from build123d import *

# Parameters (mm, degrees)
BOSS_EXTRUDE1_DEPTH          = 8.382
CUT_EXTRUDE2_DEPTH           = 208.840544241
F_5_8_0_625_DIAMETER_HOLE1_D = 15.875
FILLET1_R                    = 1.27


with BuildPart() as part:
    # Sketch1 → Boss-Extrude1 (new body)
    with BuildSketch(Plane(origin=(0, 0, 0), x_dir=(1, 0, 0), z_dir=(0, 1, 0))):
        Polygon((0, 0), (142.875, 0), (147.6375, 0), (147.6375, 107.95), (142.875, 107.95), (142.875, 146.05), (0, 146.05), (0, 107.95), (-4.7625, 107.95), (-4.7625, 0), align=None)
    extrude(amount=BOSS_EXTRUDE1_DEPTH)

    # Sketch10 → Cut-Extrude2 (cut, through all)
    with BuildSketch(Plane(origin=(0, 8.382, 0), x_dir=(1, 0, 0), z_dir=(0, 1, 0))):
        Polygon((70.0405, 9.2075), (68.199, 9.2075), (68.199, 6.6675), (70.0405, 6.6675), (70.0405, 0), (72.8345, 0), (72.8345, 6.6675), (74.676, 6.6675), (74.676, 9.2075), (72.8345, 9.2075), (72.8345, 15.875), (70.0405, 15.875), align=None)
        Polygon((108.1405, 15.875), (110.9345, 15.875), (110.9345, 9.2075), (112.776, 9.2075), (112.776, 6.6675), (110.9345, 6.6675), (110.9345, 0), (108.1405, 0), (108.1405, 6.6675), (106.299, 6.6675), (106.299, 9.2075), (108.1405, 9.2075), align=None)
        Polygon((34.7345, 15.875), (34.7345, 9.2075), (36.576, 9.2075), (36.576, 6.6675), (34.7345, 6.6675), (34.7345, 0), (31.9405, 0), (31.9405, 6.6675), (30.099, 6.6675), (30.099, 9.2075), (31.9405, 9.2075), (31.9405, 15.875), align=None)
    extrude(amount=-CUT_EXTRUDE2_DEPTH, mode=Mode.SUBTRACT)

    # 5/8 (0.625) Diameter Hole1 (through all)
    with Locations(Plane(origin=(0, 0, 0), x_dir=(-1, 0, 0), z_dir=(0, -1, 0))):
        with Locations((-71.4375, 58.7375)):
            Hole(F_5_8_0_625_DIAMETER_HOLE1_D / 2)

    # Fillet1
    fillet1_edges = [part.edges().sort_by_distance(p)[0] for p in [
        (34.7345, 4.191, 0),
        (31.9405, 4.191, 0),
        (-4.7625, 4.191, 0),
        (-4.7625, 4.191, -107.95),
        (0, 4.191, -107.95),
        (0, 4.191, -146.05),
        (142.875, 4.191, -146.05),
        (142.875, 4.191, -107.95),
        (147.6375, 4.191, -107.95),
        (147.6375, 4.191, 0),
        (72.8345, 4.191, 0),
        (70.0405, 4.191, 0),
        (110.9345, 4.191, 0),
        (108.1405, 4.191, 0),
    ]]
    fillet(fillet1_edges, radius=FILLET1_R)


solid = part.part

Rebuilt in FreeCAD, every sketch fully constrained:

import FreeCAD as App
import Part
import Sketcher

V = App.Vector
Q = App.Units.Quantity


def edges_at(feature, points):
    """Names of the edges that pass closest to the given points."""
    edges = feature.Shape.Edges
    near = lambda p: min(range(len(edges)), key=lambda i: edges[i].distToShape(Part.Vertex(*p))[0])
    return sorted({f"Edge{near(p) + 1}" for p in points})

doc = App.newDocument("Part")
body = doc.addObject("PartDesign::Body", "Body")

sketch1 = body.newObject("Sketcher::SketchObject", "Sketch")
sketch1.AttachmentSupport = (doc.getObject("XZ_Plane"), [""])
sketch1.MapMode = "FlatFace"
sketch1.addGeometry([
    Part.LineSegment(V(147.6, 0, 0), V(147.6, -108, 0)),
    Part.LineSegment(V(147.6, -108, 0), V(142.9, -108, 0)),
    Part.LineSegment(V(142.9, -108, 0), V(142.9, -146.1, 0)),
    Part.LineSegment(V(142.9, -146.1, 0), V(0, -146.1, 0)),
    Part.LineSegment(V(0, -146.1, 0), V(0, -108, 0)),
    Part.LineSegment(V(0, -108, 0), V(-4.8, -108, 0)),
    Part.LineSegment(V(-4.8, -108, 0), V(-4.8, 0, 0)),
    Part.LineSegment(V(-4.8, 0, 0), V(147.6, 0, 0)),
], False)
sketch1.addConstraint([
    Sketcher.Constraint("Coincident", 0, 2, 1, 1),
    Sketcher.Constraint("Coincident", 1, 2, 2, 1),
    Sketcher.Constraint("Coincident", 2, 2, 3, 1),
    Sketcher.Constraint("Coincident", 3, 2, 4, 1),
    Sketcher.Constraint("Coincident", 4, 2, 5, 1),
    Sketcher.Constraint("Coincident", 5, 2, 6, 1),
    Sketcher.Constraint("Coincident", 6, 2, 7, 1),
    Sketcher.Constraint("Coincident", 7, 2, 0, 1),
    Sketcher.Constraint("Vertical", 0),
    Sketcher.Constraint("Horizontal", 1),
    Sketcher.Constraint("Vertical", 2),
    Sketcher.Constraint("Horizontal", 3),
    Sketcher.Constraint("Vertical", 4),
    Sketcher.Constraint("Horizontal", 5),
    Sketcher.Constraint("Vertical", 6),
    Sketcher.Constraint("Horizontal", 7),
    Sketcher.Constraint("PointOnObject", 3, 2, -2),
    Sketcher.Constraint("PointOnObject", 6, 2, -1),
    Sketcher.Constraint("Horizontal", 1, 2, 4, 2),
    Sketcher.Constraint("Equal", 1, 5),
    Sketcher.Constraint("DistanceX", 7, 1, 7, 2, Q("6 in")),
    Sketcher.Constraint("DistanceY", 2, 2, 2, 1, Q("1.5 in")),
    Sketcher.Constraint("DistanceY", 0, 2, 0, 1, Q("4.25 in")),
    Sketcher.Constraint("DistanceX", 1, 2, 1, 1, Q("0.1875 in")),
])
pad1 = body.newObject("PartDesign::Pad", "Pad")
pad1.Profile = sketch1
pad1.Length = Q("0.33 in")
pad1.Reversed = True

sketch2 = body.newObject("Sketcher::SketchObject", "Sketch001")
sketch2.AttachmentSupport = (doc.getObject("XZ_Plane"), [""])
sketch2.MapMode = "FlatFace"
sketch2.AttachmentOffset = App.Placement(V(0, 0, -0.33 * 25.4), App.Rotation())
sketch2.addGeometry([
    Part.LineSegment(V(70, -9.2, 0), V(68.2, -9.2, 0)),
    Part.LineSegment(V(68.2, -9.2, 0), V(68.2, -6.7, 0)),
    Part.LineSegment(V(68.2, -6.7, 0), V(70, -6.7, 0)),
    Part.LineSegment(V(70, -6.7, 0), V(70, 0, 0)),
    Part.LineSegment(V(70, 0, 0), V(72.8, 0, 0)),
    Part.LineSegment(V(72.8, 0, 0), V(72.8, -6.7, 0)),
    Part.LineSegment(V(72.8, -6.7, 0), V(74.7, -6.7, 0)),
    Part.LineSegment(V(74.7, -6.7, 0), V(74.7, -9.2, 0)),
    Part.LineSegment(V(74.7, -9.2, 0), V(72.8, -9.2, 0)),
    Part.LineSegment(V(72.8, -9.2, 0), V(72.8, -15.9, 0)),
    Part.LineSegment(V(72.8, -15.9, 0), V(70, -15.9, 0)),
    Part.LineSegment(V(70, -15.9, 0), V(70, -9.2, 0)),
    Part.LineSegment(V(110.9, -15.9, 0), V(108.1, -15.9, 0)),
    Part.LineSegment(V(108.1, -15.9, 0), V(108.1, -9.2, 0)),
    Part.LineSegment(V(108.1, -9.2, 0), V(106.3, -9.2, 0)),
    Part.LineSegment(V(106.3, -9.2, 0), V(106.3, -6.7, 0)),
    Part.LineSegment(V(106.3, -6.7, 0), V(108.1, -6.7, 0)),
    Part.LineSegment(V(108.1, -6.7, 0), V(108.1, 0, 0)),
    Part.LineSegment(V(108.1, 0, 0), V(110.9, 0, 0)),
    Part.LineSegment(V(110.9, 0, 0), V(110.9, -6.7, 0)),
    Part.LineSegment(V(110.9, -6.7, 0), V(112.8, -6.7, 0)),
    Part.LineSegment(V(112.8, -6.7, 0), V(112.8, -9.2, 0)),
    Part.LineSegment(V(112.8, -9.2, 0), V(110.9, -9.2, 0)),
    Part.LineSegment(V(110.9, -9.2, 0), V(110.9, -15.9, 0)),
    Part.LineSegment(V(34.7, -9.2, 0), V(34.7, -15.9, 0)),
    Part.LineSegment(V(34.7, -15.9, 0), V(31.9, -15.9, 0)),
    Part.LineSegment(V(31.9, -15.9, 0), V(31.9, -9.2, 0)),
    Part.LineSegment(V(31.9, -9.2, 0), V(30.1, -9.2, 0)),
    Part.LineSegment(V(30.1, -9.2, 0), V(30.1, -6.7, 0)),
    Part.LineSegment(V(30.1, -6.7, 0), V(31.9, -6.7, 0)),
    Part.LineSegment(V(31.9, -6.7, 0), V(31.9, 0, 0)),
    Part.LineSegment(V(31.9, 0, 0), V(34.7, 0, 0)),
    Part.LineSegment(V(34.7, 0, 0), V(34.7, -6.7, 0)),
    Part.LineSegment(V(34.7, -6.7, 0), V(36.6, -6.7, 0)),
    Part.LineSegment(V(36.6, -6.7, 0), V(36.6, -9.2, 0)),
    Part.LineSegment(V(36.6, -9.2, 0), V(34.7, -9.2, 0)),
], False)
sketch2.addConstraint([
    Sketcher.Constraint("Coincident", 0, 2, 1, 1),
    Sketcher.Constraint("Coincident", 1, 2, 2, 1),
    Sketcher.Constraint("Coincident", 2, 2, 3, 1),
    Sketcher.Constraint("Coincident", 3, 2, 4, 1),
    Sketcher.Constraint("Coincident", 4, 2, 5, 1),
    Sketcher.Constraint("Coincident", 5, 2, 6, 1),
    Sketcher.Constraint("Coincident", 6, 2, 7, 1),
    Sketcher.Constraint("Coincident", 7, 2, 8, 1),
    Sketcher.Constraint("Coincident", 8, 2, 9, 1),
    Sketcher.Constraint("Coincident", 9, 2, 10, 1),
    Sketcher.Constraint("Coincident", 10, 2, 11, 1),
    Sketcher.Constraint("Coincident", 11, 2, 0, 1),
    Sketcher.Constraint("Coincident", 12, 2, 13, 1),
    Sketcher.Constraint("Coincident", 13, 2, 14, 1),
    Sketcher.Constraint("Coincident", 14, 2, 15, 1),
    Sketcher.Constraint("Coincident", 15, 2, 16, 1),
    Sketcher.Constraint("Coincident", 16, 2, 17, 1),
    Sketcher.Constraint("Coincident", 17, 2, 18, 1),
    Sketcher.Constraint("Coincident", 18, 2, 19, 1),
    Sketcher.Constraint("Coincident", 19, 2, 20, 1),
    Sketcher.Constraint("Coincident", 20, 2, 21, 1),
    Sketcher.Constraint("Coincident", 21, 2, 22, 1),
    Sketcher.Constraint("Coincident", 22, 2, 23, 1),
    Sketcher.Constraint("Coincident", 23, 2, 12, 1),
    Sketcher.Constraint("Coincident", 24, 2, 25, 1),
    Sketcher.Constraint("Coincident", 25, 2, 26, 1),
    Sketcher.Constraint("Coincident", 26, 2, 27, 1),
    Sketcher.Constraint("Coincident", 27, 2, 28, 1),
    Sketcher.Constraint("Coincident", 28, 2, 29, 1),
    Sketcher.Constraint("Coincident", 29, 2, 30, 1),
    Sketcher.Constraint("Coincident", 30, 2, 31, 1),
    Sketcher.Constraint("Coincident", 31, 2, 32, 1),
    Sketcher.Constraint("Coincident", 32, 2, 33, 1),
    Sketcher.Constraint("Coincident", 33, 2, 34, 1),
    Sketcher.Constraint("Coincident", 34, 2, 35, 1),
    Sketcher.Constraint("Coincident", 35, 2, 24, 1),
    Sketcher.Constraint("Horizontal", 0),
    Sketcher.Constraint("Vertical", 1),
    Sketcher.Constraint("Horizontal", 2),
    Sketcher.Constraint("Vertical", 3),
    Sketcher.Constraint("Horizontal", 4),
    Sketcher.Constraint("Vertical", 5),
    Sketcher.Constraint("Horizontal", 6),
    Sketcher.Constraint("Vertical", 7),
    Sketcher.Constraint("Horizontal", 8),
    Sketcher.Constraint("Vertical", 9),
    Sketcher.Constraint("Horizontal", 10),
    Sketcher.Constraint("Vertical", 11),
    Sketcher.Constraint("Horizontal", 12),
    Sketcher.Constraint("Vertical", 13),
    Sketcher.Constraint("Horizontal", 14),
    Sketcher.Constraint("Vertical", 15),
    Sketcher.Constraint("Horizontal", 16),
    Sketcher.Constraint("Vertical", 17),
    Sketcher.Constraint("Horizontal", 18),
    Sketcher.Constraint("Vertical", 19),
    Sketcher.Constraint("Horizontal", 20),
    Sketcher.Constraint("Vertical", 21),
    Sketcher.Constraint("Horizontal", 22),
    Sketcher.Constraint("Vertical", 23),
    Sketcher.Constraint("Vertical", 24),
    Sketcher.Constraint("Horizontal", 25),
    Sketcher.Constraint("Vertical", 26),
    Sketcher.Constraint("Horizontal", 27),
    Sketcher.Constraint("Vertical", 28),
    Sketcher.Constraint("Horizontal", 29),
    Sketcher.Constraint("Vertical", 30),
    Sketcher.Constraint("Horizontal", 31),
    Sketcher.Constraint("Vertical", 32),
    Sketcher.Constraint("Horizontal", 33),
    Sketcher.Constraint("Vertical", 34),
    Sketcher.Constraint("Horizontal", 35),
    Sketcher.Constraint("PointOnObject", 3, 2, -1),
    Sketcher.Constraint("PointOnObject", 17, 2, -1),
    Sketcher.Constraint("PointOnObject", 30, 2, -1),
    Sketcher.Constraint("Horizontal", 2, 2, 5, 2),
    Sketcher.Constraint("Horizontal", 0, 2, 7, 2),
    Sketcher.Constraint("Horizontal", 10, 2, 12, 2),
    Sketcher.Constraint("Horizontal", 11, 2, 13, 2),
    Sketcher.Constraint("Horizontal", 6, 2, 15, 2),
    Sketcher.Constraint("Horizontal", 16, 2, 19, 2),
    Sketcher.Constraint("Horizontal", 14, 2, 21, 2),
    Sketcher.Constraint("Horizontal", 23, 2, 24, 2),
    Sketcher.Constraint("Horizontal", 22, 2, 26, 2),
    Sketcher.Constraint("Horizontal", 20, 2, 28, 2),
    Sketcher.Constraint("Horizontal", 29, 2, 32, 2),
    Sketcher.Constraint("Horizontal", 27, 2, 34, 2),
    Sketcher.Constraint("Vertical", 5, 2, 8, 2),
    Sketcher.Constraint("Vertical", 3, 2, 10, 2),
    Sketcher.Constraint("Vertical", 13, 2, 16, 2),
    Sketcher.Constraint("Vertical", 19, 2, 22, 2),
    Sketcher.Constraint("Vertical", 26, 2, 29, 2),
    Sketcher.Constraint("Vertical", 24, 2, 31, 2),
    Sketcher.Constraint("Equal", 2, 6),
    Sketcher.Constraint("Equal", 10, 12),
    Sketcher.Constraint("Equal", 8, 14),
    Sketcher.Constraint("Equal", 16, 20),
    Sketcher.Constraint("Equal", 18, 25),
    Sketcher.Constraint("Equal", 22, 27),
    Sketcher.Constraint("Equal", 29, 33),
    Sketcher.Constraint("Equal", 5, 9),
    Sketcher.Constraint("DistanceY", 1, 1, 1, 2, Q("0.1 in")),
    Sketcher.Constraint("DistanceX", 4, 1, 4, 2, Q("0.11 in")),
    Sketcher.Constraint("DistanceX", 25, 2, 10, 2, Q("1.5 in")),
    Sketcher.Constraint("DistanceX", -1, 1, 6, 2, Q("2.94 in")),
    Sketcher.Constraint("DistanceX", -1, 1, 20, 2, Q("4.44 in")),
    Sketcher.Constraint("DistanceX", 0, 2, 0, 1, Q("0.0725 in")),
    Sketcher.Constraint("DistanceY", 3, 1, 3, 2, Q("0.2625 in")),
])
pocket1 = body.newObject("PartDesign::Pocket", "Pocket")
pocket1.Profile = sketch2
pocket1.Type = "ThroughAll"
pocket1.Reversed = True

sketch3 = body.newObject("Sketcher::SketchObject", "Sketch002")
sketch3.AttachmentSupport = (doc.getObject("XZ_Plane"), [""])
sketch3.MapMode = "FlatFace"
sketch3.addGeometry(Part.Circle(V(71, -59, 0), V(0, 0, 1), 8), False)
sketch3.addConstraint([
    Sketcher.Constraint("Diameter", 0, Q("0.625 in")),
    Sketcher.Constraint("DistanceX", -1, 1, 0, 3, Q("2.8125 in")),
    Sketcher.Constraint("DistanceY", 0, 3, -1, 1, Q("2.3125 in")),
])
doc.recompute()
hole = body.newObject("PartDesign::Hole", "Hole")
hole.Profile = sketch3
hole.ThreadType = "None"
hole.Diameter = Q("0.625 in")
hole.DepthType = "ThroughAll"
doc.recompute()

fillet = body.newObject("PartDesign::Fillet", "Fillet")
fillet.Base = (hole, edges_at(hole, [
    (34.734, 4.191, 0),
    (31.941, 4.191, 0),
    (-4.763, 4.191, 0),
    (-4.763, 4.191, -107.95),
    (0, 4.191, -107.95),
    (0, 4.191, -146.05),
    (142.875, 4.191, -146.05),
    (142.875, 4.191, -107.95),
    (147.637, 4.191, -107.95),
    (147.637, 4.191, 0),
    (72.835, 4.191, 0),
    (70.04, 4.191, 0),
    (110.934, 4.191, 0),
    (108.141, 4.191, 0),
]))
fillet.Radius = Q("0.05 in")

doc.recompute()
